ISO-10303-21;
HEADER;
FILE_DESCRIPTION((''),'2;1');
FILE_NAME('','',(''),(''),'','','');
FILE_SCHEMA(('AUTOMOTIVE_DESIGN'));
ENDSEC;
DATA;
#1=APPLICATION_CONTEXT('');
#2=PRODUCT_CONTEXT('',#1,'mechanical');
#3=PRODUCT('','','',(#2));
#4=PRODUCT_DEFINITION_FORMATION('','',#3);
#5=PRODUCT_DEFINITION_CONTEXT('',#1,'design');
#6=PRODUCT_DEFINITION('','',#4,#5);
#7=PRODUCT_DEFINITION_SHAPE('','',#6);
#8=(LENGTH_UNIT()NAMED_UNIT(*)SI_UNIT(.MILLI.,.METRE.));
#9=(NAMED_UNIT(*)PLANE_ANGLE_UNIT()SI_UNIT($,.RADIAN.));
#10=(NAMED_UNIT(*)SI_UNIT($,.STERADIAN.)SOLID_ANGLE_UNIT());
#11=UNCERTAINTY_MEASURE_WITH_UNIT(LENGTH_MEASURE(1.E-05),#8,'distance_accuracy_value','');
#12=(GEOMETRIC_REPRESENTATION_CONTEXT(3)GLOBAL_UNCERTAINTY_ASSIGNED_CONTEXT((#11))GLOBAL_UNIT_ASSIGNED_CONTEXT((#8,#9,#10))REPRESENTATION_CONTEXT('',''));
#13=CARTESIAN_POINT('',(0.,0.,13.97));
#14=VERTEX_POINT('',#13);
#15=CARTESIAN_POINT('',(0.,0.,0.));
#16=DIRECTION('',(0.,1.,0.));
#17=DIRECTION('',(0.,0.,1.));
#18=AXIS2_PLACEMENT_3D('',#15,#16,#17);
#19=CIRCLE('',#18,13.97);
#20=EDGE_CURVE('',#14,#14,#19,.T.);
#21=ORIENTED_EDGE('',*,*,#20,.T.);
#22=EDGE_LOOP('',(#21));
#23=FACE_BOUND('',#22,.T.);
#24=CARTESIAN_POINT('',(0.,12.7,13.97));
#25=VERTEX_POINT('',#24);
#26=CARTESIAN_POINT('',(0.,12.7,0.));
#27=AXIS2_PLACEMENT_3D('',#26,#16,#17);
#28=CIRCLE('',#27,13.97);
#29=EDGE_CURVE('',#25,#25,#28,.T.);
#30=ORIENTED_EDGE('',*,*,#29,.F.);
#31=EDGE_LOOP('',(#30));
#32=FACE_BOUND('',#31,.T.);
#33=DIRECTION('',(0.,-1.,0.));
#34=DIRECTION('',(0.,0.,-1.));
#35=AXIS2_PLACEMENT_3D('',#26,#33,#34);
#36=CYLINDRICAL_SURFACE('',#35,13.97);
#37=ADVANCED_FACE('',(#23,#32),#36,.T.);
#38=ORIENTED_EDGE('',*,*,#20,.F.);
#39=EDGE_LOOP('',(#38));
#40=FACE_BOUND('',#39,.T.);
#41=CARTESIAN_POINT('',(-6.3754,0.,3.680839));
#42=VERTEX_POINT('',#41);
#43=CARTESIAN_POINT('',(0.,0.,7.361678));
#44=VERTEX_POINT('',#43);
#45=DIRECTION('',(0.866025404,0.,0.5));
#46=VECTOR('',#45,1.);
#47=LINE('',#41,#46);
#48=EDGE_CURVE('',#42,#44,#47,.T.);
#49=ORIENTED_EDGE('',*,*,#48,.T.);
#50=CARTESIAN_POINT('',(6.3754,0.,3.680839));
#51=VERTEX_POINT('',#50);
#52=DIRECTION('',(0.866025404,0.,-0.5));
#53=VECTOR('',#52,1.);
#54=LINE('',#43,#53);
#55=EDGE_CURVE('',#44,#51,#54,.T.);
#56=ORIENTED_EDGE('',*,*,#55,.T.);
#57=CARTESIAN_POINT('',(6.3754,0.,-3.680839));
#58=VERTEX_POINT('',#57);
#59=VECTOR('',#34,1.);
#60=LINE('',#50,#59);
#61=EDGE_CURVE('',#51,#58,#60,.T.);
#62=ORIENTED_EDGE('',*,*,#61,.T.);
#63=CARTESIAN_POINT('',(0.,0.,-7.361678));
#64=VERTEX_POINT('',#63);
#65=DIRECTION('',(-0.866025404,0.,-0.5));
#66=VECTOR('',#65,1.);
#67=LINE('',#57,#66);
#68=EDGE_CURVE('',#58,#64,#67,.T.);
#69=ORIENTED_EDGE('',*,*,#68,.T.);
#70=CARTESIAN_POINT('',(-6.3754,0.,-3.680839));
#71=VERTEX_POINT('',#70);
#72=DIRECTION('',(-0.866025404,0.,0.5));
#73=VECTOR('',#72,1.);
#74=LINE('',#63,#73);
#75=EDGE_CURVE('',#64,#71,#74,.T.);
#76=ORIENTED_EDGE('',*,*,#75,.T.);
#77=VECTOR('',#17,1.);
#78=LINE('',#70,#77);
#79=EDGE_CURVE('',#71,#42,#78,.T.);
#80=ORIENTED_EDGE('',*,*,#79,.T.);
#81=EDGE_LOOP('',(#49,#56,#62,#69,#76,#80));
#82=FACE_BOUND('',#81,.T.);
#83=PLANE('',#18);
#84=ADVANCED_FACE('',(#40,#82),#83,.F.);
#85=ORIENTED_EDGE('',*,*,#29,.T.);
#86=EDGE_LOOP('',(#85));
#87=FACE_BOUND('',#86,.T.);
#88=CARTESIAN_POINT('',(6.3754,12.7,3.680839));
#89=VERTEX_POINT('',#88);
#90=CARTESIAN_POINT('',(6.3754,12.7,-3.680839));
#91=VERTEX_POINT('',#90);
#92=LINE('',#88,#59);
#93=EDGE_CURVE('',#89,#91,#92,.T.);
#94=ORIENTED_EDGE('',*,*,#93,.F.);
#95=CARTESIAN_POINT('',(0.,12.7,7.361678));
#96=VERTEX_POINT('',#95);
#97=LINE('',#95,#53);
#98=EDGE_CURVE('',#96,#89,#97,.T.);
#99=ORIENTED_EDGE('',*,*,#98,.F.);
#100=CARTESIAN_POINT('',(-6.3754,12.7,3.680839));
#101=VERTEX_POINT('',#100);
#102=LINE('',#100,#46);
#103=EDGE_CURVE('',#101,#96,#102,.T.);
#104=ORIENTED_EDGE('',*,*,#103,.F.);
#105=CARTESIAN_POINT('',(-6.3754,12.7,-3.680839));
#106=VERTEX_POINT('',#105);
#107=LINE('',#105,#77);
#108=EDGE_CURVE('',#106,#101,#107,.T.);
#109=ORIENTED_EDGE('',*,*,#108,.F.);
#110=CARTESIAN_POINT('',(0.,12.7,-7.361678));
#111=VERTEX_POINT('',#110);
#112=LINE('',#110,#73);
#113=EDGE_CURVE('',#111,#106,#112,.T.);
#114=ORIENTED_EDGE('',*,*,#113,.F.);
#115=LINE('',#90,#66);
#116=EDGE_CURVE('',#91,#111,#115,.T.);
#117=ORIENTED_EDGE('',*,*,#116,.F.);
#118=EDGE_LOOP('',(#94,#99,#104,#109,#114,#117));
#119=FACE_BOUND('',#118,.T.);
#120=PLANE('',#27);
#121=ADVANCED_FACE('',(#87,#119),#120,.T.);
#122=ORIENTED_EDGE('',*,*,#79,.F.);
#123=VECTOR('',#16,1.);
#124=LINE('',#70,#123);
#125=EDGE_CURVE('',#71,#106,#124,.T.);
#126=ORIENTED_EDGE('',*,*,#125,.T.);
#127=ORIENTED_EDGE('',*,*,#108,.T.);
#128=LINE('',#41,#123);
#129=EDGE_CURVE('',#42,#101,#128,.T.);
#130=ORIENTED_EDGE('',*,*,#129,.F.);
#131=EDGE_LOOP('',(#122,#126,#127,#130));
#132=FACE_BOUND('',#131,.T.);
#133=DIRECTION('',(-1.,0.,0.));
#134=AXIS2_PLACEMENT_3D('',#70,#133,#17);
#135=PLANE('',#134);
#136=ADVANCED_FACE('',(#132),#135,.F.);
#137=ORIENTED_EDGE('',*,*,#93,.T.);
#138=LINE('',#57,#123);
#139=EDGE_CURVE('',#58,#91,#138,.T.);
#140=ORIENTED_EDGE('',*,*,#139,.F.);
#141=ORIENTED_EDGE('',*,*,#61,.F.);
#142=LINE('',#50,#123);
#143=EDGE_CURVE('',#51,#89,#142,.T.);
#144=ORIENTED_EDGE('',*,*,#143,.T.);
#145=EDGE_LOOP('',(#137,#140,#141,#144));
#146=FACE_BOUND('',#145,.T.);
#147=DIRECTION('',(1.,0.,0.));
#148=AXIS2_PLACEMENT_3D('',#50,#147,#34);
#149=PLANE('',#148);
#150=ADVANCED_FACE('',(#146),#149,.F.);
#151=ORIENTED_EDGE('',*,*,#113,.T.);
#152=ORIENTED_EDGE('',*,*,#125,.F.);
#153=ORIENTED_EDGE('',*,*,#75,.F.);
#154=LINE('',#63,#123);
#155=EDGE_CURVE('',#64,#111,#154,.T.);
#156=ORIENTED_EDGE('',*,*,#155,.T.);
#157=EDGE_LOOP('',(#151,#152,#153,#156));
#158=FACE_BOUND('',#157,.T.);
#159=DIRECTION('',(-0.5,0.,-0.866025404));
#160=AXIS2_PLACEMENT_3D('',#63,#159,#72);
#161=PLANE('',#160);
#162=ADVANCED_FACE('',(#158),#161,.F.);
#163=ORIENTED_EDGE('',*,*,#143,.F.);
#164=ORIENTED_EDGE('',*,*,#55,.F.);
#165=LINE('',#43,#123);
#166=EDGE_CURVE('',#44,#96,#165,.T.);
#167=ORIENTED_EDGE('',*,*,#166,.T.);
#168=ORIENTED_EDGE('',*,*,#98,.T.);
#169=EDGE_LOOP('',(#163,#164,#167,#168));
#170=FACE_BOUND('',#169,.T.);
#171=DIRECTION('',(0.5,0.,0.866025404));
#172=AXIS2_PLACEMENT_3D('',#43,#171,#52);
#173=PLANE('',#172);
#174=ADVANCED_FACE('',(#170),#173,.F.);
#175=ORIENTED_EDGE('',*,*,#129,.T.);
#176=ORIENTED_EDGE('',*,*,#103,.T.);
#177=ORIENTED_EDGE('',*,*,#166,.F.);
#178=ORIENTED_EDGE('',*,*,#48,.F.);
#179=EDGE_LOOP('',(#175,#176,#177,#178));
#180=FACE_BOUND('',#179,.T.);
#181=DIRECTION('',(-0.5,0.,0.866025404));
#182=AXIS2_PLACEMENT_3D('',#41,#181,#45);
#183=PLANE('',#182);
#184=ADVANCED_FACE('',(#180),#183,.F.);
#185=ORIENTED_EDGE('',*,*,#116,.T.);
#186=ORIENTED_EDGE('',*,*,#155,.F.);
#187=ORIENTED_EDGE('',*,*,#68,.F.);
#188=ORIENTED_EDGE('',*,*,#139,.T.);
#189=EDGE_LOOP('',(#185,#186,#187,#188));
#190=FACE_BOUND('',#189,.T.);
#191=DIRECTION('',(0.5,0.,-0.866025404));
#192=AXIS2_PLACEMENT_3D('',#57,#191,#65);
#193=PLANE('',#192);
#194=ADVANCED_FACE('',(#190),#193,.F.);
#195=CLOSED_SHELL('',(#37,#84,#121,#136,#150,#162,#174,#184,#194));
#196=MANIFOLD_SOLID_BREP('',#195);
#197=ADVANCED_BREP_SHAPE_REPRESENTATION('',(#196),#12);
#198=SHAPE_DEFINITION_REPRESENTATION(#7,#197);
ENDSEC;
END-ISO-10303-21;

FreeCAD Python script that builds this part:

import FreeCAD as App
import Part
import Sketcher

V = App.Vector
Q = App.Units.Quantity


def add_polygon(sketch, points):
    """Adds a closed chain of lines whose ends are joined by coincident constraints."""
    first, n = sketch.GeometryCount, len(points)
    for a, b in zip(points, points[1:] + points[:1]):
        sketch.addGeometry(Part.LineSegment(App.Vector(*a, 0), App.Vector(*b, 0)), False)
    for i in range(n):
        sketch.addConstraint(Sketcher.Constraint("Coincident", first + i, 2, first + (i + 1) % n, 1))

doc = App.newDocument("Part")
body = doc.addObject("PartDesign::Body", "Body")

sketch1 = body.newObject("Sketcher::SketchObject", "Sketch")
sketch1.AttachmentSupport = (doc.getObject("XZ_Plane"), [""])
sketch1.MapMode = "FlatFace"
sketch1.addGeometry(Part.Circle(V(0, 0, 0), V(0, 0, 1), 14), False)
sketch1.addConstraint([
    Sketcher.Constraint("Coincident", 0, 3, -1, 1),
    Sketcher.Constraint("Diameter", 0, Q("1.1 in")),
])
pad1 = body.newObject("PartDesign::Pad", "Pad")
pad1.Profile = sketch1
pad1.Length = Q("0.5 in")
pad1.Reversed = True

sketch2 = body.newObject("Sketcher::SketchObject", "Sketch001")
sketch2.AttachmentSupport = (doc.getObject("XZ_Plane"), [""])
sketch2.MapMode = "FlatFace"
sketch2.AttachmentOffset = App.Placement(V(0, 0, -0.5 * 25.4), App.Rotation())
add_polygon(sketch2, [(0, -7), (-6, -4), (-6, 4), (0, 7), (6, 4), (6, -4)])
sketch2.addConstraint([
    Sketcher.Constraint("Vertical", 1),
    Sketcher.Constraint("Vertical", 4),
    Sketcher.Constraint("Symmetric", 0, 2, 3, 2, -1, 1),
    Sketcher.Constraint("Symmetric", 2, 2, 5, 2, -1, 1),
    Sketcher.Constraint("PointOnObject", 2, 2, -2),
    Sketcher.Constraint("Parallel", 2, 5),
    Sketcher.Constraint("Horizontal", 1, 2, 3, 2),
    Sketcher.Constraint("Angle", 0, Q("150 deg")),
    Sketcher.Constraint("DistanceX", 0, 2, -1, 1, Q("0.251 in")),
    Sketcher.Constraint("DistanceY", 1, 1, 1, 2, 7.361678),
])
pocket1 = body.newObject("PartDesign::Pocket", "Pocket")
pocket1.Profile = sketch2
pocket1.Length = Q("0.5 in")
pocket1.Reversed = True

doc.recompute()
